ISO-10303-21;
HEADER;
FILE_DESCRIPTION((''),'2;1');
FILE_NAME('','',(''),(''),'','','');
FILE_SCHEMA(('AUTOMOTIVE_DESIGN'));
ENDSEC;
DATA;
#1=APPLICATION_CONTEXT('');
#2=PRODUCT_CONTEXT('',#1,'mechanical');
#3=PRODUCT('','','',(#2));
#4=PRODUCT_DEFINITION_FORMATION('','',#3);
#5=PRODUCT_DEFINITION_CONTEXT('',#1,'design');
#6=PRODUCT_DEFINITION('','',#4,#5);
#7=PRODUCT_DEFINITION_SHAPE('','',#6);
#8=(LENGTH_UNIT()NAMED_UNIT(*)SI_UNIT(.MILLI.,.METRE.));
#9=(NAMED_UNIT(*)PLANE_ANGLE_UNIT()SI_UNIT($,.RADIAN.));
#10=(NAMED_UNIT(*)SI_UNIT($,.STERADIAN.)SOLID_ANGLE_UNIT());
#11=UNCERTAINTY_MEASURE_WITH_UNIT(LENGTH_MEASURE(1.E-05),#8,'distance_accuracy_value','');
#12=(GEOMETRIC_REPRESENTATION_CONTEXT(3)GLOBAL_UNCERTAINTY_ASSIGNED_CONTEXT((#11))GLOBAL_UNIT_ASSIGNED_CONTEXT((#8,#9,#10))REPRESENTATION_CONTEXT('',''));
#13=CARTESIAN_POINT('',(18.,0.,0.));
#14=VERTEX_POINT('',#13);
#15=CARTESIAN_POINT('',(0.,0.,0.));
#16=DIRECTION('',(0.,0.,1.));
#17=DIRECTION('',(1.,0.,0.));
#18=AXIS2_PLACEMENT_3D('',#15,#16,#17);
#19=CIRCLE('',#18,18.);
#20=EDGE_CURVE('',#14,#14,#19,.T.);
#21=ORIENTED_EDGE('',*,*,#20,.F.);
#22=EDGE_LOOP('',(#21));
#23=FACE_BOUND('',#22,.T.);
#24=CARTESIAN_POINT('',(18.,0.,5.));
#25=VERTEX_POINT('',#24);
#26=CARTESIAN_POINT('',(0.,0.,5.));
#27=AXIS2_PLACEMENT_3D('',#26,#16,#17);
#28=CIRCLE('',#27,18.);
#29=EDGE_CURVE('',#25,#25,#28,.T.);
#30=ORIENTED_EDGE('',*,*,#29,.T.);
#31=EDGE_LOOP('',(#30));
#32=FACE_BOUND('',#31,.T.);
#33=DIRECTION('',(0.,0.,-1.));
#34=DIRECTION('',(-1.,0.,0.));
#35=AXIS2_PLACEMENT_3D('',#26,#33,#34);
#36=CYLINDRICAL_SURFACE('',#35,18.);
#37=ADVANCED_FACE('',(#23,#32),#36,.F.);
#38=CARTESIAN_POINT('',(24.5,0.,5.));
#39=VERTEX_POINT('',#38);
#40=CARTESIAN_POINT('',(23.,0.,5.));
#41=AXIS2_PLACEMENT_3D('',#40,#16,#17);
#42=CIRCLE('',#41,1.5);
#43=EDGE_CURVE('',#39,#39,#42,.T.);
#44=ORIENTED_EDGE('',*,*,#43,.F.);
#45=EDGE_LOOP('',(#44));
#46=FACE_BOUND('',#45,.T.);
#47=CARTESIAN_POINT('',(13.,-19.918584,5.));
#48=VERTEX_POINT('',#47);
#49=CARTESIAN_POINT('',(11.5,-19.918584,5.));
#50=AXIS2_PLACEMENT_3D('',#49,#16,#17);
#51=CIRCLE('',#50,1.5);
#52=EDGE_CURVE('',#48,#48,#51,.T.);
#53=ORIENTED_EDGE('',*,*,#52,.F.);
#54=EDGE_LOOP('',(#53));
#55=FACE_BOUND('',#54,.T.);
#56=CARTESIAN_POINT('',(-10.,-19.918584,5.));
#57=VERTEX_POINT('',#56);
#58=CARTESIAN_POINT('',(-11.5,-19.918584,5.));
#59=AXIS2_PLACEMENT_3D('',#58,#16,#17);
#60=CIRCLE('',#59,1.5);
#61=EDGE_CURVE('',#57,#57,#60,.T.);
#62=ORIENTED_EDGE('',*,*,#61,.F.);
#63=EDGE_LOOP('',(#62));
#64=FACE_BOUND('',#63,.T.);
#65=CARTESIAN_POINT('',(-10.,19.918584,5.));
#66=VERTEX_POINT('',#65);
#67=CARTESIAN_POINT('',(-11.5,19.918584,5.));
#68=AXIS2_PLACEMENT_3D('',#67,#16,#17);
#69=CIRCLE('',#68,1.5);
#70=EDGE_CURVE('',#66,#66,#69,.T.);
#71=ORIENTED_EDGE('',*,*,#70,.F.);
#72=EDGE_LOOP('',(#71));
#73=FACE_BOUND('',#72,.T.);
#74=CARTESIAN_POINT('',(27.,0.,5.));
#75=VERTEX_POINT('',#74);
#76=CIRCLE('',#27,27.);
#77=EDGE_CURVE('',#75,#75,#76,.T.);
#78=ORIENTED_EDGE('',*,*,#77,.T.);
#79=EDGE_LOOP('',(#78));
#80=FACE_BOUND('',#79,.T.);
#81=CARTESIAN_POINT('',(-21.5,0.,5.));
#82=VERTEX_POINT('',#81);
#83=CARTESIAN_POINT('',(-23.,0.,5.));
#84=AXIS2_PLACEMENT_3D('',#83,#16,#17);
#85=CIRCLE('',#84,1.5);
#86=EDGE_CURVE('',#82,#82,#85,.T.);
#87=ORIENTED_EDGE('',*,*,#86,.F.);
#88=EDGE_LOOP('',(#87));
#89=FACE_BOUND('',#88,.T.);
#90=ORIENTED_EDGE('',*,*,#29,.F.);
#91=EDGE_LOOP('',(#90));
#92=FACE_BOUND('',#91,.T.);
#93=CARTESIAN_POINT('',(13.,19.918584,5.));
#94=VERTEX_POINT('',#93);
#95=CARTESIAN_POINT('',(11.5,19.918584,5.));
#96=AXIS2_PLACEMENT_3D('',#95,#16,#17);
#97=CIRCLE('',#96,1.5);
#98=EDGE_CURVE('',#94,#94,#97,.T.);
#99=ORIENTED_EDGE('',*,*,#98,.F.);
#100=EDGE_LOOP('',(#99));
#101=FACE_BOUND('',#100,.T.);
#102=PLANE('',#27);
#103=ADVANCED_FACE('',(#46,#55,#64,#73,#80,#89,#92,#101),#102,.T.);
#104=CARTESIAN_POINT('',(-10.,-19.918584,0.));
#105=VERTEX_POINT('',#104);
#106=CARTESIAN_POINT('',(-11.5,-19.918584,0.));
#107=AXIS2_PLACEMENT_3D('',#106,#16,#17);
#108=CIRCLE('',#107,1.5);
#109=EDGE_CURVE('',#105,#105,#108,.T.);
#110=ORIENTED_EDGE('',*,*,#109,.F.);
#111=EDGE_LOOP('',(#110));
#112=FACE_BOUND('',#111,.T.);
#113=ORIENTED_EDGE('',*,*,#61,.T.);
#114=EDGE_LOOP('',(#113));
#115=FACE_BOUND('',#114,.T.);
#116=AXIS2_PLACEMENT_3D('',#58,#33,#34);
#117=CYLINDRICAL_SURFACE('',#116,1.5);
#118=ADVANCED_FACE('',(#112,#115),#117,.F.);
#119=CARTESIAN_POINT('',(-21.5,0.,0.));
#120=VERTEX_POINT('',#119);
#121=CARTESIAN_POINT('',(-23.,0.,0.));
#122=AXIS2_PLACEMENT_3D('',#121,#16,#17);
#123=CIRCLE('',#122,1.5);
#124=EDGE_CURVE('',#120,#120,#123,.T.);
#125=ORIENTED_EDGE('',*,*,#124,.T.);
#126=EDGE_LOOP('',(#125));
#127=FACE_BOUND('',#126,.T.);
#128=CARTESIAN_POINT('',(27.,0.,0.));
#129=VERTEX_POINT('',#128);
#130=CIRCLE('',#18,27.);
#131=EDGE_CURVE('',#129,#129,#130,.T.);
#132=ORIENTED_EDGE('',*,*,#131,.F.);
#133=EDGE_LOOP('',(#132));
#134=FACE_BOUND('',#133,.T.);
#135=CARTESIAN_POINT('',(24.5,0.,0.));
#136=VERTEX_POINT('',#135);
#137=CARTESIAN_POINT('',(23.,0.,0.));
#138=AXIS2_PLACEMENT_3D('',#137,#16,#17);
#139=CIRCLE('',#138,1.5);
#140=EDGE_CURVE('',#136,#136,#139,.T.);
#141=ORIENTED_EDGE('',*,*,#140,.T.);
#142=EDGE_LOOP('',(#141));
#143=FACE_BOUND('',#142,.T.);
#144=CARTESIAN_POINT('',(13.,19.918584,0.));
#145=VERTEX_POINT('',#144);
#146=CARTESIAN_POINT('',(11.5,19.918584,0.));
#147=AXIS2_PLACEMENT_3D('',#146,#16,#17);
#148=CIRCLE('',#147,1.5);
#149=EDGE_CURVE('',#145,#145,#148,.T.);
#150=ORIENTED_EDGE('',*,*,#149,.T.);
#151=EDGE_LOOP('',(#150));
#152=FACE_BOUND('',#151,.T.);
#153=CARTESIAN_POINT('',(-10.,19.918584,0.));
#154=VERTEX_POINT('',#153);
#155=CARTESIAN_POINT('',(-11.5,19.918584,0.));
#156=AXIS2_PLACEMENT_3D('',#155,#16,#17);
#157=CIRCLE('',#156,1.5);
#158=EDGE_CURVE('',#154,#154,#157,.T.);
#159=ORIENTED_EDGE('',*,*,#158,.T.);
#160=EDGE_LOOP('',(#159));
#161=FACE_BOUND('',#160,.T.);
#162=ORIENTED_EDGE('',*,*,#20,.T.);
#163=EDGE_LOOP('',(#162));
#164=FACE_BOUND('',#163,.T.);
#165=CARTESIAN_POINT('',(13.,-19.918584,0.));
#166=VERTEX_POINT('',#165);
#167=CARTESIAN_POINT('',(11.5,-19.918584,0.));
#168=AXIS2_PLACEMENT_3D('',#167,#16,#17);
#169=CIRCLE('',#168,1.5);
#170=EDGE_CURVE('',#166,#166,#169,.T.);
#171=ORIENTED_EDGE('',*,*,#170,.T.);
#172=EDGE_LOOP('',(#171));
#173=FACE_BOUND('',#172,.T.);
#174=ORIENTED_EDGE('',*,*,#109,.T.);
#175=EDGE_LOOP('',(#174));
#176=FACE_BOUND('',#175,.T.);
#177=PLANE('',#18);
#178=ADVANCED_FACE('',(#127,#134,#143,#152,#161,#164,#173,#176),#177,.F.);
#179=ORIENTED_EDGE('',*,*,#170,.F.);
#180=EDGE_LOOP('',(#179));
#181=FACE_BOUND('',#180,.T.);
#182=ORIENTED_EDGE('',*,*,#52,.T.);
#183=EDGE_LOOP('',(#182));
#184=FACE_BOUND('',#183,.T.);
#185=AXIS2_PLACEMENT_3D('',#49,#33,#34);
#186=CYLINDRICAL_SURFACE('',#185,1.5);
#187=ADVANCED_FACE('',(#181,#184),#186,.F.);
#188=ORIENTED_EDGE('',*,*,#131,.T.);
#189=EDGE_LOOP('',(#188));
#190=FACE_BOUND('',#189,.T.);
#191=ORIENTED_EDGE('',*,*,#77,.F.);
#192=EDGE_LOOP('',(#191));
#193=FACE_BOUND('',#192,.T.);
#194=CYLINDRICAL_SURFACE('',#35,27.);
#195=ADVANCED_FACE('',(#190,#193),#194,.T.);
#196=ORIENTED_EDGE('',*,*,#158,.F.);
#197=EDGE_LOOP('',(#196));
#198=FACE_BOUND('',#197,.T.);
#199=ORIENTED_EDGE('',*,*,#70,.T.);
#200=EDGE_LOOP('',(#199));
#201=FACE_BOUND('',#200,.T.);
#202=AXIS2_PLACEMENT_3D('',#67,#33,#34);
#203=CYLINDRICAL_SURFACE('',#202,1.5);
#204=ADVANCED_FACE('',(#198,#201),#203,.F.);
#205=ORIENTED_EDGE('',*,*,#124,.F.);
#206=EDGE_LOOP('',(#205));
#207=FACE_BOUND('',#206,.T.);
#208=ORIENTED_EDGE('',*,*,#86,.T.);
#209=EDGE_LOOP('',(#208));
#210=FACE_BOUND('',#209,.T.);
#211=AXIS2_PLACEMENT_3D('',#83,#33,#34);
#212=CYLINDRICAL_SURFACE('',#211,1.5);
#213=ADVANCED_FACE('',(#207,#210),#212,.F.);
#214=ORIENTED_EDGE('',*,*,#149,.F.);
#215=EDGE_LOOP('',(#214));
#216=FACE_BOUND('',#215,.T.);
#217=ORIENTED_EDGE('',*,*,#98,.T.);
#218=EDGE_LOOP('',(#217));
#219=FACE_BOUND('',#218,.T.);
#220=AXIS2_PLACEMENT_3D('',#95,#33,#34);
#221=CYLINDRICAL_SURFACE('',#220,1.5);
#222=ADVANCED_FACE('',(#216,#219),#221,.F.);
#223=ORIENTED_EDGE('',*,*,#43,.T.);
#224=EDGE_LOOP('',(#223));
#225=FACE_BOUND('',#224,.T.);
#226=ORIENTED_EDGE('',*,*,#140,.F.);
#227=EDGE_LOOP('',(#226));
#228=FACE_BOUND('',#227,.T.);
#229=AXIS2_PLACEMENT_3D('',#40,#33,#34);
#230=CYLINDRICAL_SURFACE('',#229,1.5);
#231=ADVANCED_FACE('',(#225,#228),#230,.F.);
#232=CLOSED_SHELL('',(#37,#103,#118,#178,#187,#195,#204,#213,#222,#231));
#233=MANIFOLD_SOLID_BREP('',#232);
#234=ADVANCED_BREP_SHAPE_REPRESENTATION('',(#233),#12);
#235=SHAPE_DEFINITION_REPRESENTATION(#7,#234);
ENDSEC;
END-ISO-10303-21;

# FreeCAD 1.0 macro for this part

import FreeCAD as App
import Part
import Sketcher

V = App.Vector

doc = App.newDocument("Part")
body = doc.addObject("PartDesign::Body", "Body")

# Sketch on XY plane
sketch1 = doc.addObject("Sketcher::SketchObject", "Sketch")
body.addObject(sketch1)
sketch1.AttachmentSupport = (doc.XY_Plane, [""])
sketch1.MapMode = "FlatFace"
sketch1.addGeometry([
    Part.Circle(V(0, 0, 0), V(0, 0, 1), 27),  # 0
    Part.Circle(V(-11.5, -19.9, 0), V(0, 0, 1), 1.5),  # 1
    Part.Circle(V(-23, 0, 0), V(0, 0, 1), 1.5),  # 2
    Part.Circle(V(0, 0, 0), V(0, 0, 1), 18),  # 3
    Part.Circle(V(11.5, -19.9, 0), V(0, 0, 1), 1.5),  # 4
    Part.Circle(V(23, 0, 0), V(0, 0, 1), 1.5),  # 5
    Part.Circle(V(-11.5, 19.9, 0), V(0, 0, 1), 1.5),  # 6
    Part.Circle(V(11.5, 19.9, 0), V(0, 0, 1), 1.5),  # 7
], False)
sketch1.addConstraint([
    Sketcher.Constraint("Coincident", 0, 3, -1, 1),
    Sketcher.Constraint("Coincident", 3, 3, -1, 1),
    Sketcher.Constraint("Equal", 1, 2),
    Sketcher.Constraint("Equal", 2, 4),
    Sketcher.Constraint("Equal", 4, 5),
    Sketcher.Constraint("Equal", 5, 6),
    Sketcher.Constraint("Equal", 6, 7),
    Sketcher.Constraint("Symmetric", 2, 3, 5, 3, -1, 1),
    Sketcher.Constraint("Symmetric", 4, 3, 6, 3, -1, 1),
    Sketcher.Constraint("Symmetric", 1, 3, 7, 3, -1, 1),
    Sketcher.Constraint("Symmetric", 1, 3, 4, 3, -2),
    Sketcher.Constraint("PointOnObject", 2, 3, -1),
    Sketcher.Constraint("Diameter", 0, 54.0),
    Sketcher.Constraint("Diameter", 1, 3.0),
    Sketcher.Constraint("Diameter", 3, 36.0),
    Sketcher.Constraint("DistanceX", 2, 3, -1, 1, 23.0),
    Sketcher.Constraint("DistanceX", 1, 3, 4, 3, 23.0),
    Sketcher.Constraint("DistanceY", 1, 3, 6, 3, 39.837169),
])
pad1 = doc.addObject("PartDesign::Pad", "Pad")
body.addObject(pad1)
pad1.Profile = sketch1
pad1.Length = 5

doc.recompute()
